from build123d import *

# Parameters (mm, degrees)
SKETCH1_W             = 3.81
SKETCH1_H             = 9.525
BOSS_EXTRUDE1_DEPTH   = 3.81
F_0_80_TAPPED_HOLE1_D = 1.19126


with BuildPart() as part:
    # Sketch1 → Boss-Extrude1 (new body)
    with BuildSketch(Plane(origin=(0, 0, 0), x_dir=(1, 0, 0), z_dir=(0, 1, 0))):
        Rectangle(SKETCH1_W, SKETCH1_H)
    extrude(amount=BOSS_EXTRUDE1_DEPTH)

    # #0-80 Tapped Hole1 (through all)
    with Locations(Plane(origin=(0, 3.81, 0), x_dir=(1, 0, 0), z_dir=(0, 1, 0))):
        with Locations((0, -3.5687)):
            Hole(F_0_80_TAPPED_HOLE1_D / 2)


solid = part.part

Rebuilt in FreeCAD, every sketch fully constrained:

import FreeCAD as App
import Part
import Sketcher
from FreeCAD import Vector
Q = App.Units.Quantity

doc = App.newDocument("Part")
body = doc.addObject("PartDesign::Body", "Body")

# Sketch on XZ plane
sketch1 = body.newObject("Sketcher::SketchObject", "Sketch")
sketch1.AttachmentSupport = (doc.getObject("XZ_Plane"), [""])
sketch1.MapMode = "FlatFace"
sketch1.addGeometry(Part.LineSegment(Vector(-1.9, -4.8, 0), Vector(-1.9, 4.8, 0)), False)
sketch1.addGeometry(Part.LineSegment(Vector(-1.9, 4.8, 0), Vector(1.9, 4.8, 0)), False)
sketch1.addGeometry(Part.LineSegment(Vector(1.9, 4.8, 0), Vector(1.9, -4.8, 0)), False)
sketch1.addGeometry(Part.LineSegment(Vector(1.9, -4.8, 0), Vector(-1.9, -4.8, 0)), False)
sketch1.addConstraint(Sketcher.Constraint("Coincident", 0, 2, 1, 1))
sketch1.addConstraint(Sketcher.Constraint("Coincident", 1, 2, 2, 1))
sketch1.addConstraint(Sketcher.Constraint("Coincident", 2, 2, 3, 1))
sketch1.addConstraint(Sketcher.Constraint("Coincident", 3, 2, 0, 1))
sketch1.addConstraint(Sketcher.Constraint("Vertical", 0))
sketch1.addConstraint(Sketcher.Constraint("Horizontal", 1))
sketch1.addConstraint(Sketcher.Constraint("Vertical", 2))
sketch1.addConstraint(Sketcher.Constraint("Horizontal", 3))
sketch1.addConstraint(Sketcher.Constraint("Symmetric", 0, 2, 2, 2, -1, 1))
sketch1.addConstraint(Sketcher.Constraint("DistanceX", 1, 1, 1, 2, Q("0.15 in")))
sketch1.addConstraint(Sketcher.Constraint("DistanceY", 0, 1, 0, 2, Q("0.375 in")))
pad1 = body.newObject("PartDesign::Pad", "Pad")
pad1.Profile = sketch1
pad1.Length = Q("0.15 in")
pad1.Reversed = True

# Sketch on XZ plane
sketch2 = body.newObject("Sketcher::SketchObject", "Sketch001")
sketch2.AttachmentSupport = (doc.getObject("XZ_Plane"), [""])
sketch2.MapMode = "FlatFace"
sketch2.AttachmentOffset = App.Placement(Vector(0, 0, -0.15 * 25.4), App.Rotation())
sketch2.addGeometry(Part.Circle(Vector(0, 3.6, 0), Vector(0, 0, 1), 0.6), False)
sketch2.addConstraint(Sketcher.Constraint("PointOnObject", 0, 3, -2))
sketch2.addConstraint(Sketcher.Constraint("Diameter", 0, Q("0.0469 in")))
sketch2.addConstraint(Sketcher.Constraint("DistanceY", -1, 1, 0, 3, Q("0.1405 in")))
doc.recompute()
hole = body.newObject("PartDesign::Hole", "Hole")
hole.Profile = sketch2
hole.ThreadType = "None"
hole.Diameter = Q("0.0469 in")
hole.DepthType = "ThroughAll"
hole.Reversed = True

doc.recompute()
